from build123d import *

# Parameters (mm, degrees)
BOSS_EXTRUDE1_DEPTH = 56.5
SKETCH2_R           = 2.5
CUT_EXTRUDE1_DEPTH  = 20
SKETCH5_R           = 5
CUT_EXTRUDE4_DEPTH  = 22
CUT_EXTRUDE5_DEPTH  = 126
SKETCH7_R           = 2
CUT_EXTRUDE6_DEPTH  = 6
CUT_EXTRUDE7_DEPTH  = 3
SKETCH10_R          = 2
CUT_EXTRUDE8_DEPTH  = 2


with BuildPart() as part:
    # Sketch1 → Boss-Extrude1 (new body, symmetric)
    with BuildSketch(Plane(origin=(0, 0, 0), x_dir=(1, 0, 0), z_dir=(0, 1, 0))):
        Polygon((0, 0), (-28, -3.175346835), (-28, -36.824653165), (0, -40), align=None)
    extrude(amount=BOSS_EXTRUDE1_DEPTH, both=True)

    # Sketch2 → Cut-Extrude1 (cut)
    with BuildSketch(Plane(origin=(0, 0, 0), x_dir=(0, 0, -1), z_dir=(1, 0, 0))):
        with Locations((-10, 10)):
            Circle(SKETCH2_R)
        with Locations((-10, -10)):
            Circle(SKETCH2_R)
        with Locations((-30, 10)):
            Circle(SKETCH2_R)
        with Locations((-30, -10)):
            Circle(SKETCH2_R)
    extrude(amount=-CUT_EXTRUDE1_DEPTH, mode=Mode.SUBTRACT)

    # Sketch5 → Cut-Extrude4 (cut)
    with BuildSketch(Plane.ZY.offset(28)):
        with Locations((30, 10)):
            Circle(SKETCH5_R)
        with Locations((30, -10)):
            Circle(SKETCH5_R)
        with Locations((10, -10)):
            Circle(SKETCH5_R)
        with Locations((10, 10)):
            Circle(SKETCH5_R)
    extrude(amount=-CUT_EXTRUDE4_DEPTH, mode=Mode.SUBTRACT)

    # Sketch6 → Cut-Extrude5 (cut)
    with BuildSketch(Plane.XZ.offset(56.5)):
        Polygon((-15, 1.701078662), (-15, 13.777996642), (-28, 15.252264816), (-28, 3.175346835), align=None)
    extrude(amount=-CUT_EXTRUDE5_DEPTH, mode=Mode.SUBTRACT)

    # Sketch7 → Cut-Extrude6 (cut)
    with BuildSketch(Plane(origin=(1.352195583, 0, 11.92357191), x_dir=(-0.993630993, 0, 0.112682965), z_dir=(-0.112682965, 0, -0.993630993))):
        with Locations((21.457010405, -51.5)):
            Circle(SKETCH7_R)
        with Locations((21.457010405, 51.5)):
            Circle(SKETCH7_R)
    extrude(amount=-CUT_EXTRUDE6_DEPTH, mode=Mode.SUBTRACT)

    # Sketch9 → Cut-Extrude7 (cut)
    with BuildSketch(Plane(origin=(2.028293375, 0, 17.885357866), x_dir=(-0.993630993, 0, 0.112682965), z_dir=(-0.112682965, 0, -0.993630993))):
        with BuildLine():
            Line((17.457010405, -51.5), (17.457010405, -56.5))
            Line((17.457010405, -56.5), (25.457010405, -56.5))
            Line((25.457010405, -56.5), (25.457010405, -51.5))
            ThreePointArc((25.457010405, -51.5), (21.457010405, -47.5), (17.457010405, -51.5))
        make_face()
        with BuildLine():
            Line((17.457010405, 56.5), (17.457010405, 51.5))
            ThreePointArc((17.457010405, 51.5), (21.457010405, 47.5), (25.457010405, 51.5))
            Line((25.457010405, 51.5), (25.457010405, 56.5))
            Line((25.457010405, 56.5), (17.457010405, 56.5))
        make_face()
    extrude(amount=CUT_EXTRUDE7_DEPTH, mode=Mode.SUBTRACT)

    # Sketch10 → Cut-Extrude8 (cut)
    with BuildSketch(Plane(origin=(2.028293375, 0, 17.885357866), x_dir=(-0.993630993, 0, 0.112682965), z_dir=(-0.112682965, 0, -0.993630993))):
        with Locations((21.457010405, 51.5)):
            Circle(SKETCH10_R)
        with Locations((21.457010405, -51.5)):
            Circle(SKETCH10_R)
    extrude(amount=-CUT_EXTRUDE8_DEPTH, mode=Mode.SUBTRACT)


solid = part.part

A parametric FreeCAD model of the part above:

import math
import FreeCAD as App
import Part
import Sketcher

V = App.Vector
Q = App.Units.Quantity

doc = App.newDocument("Part")
params = doc.addObject("Spreadsheet::Sheet", "Params")
for row, (alias, value) in enumerate([
    ("sketch1_height", "40 mm"),
    ("pad1_length", "113 mm"),
    ("sketch2_diameter", "5 mm"),
    ("pocket1_length", "20 mm"),
    ("sketch3_diameter", "10 mm"),
    ("pocket2_length", "22 mm"),
    ("pocket3_length", "126 mm"),
    ("sketch5_diameter", "4 mm"),
    ("pocket4_length", "6 mm"),
    ("sketch6_radius", "4 mm"),
    ("sketch6_height", "5 mm"),
    ("pocket5_length", "3 mm"),
    ("sketch7_diameter", "4 mm"),
    ("pocket6_length", "2 mm"),
], start=1):
    params.set(f"A{row}", alias)
    params.set(f"B{row}", "=" + value)
    params.setAlias(f"B{row}", alias)

body = doc.addObject("PartDesign::Body", "Body")

# Sketch on XZ plane
sketch1 = body.newObject("Sketcher::SketchObject", "Sketch")
sketch1.AttachmentSupport = (doc.getObject("XZ_Plane"), [""])
sketch1.MapMode = "FlatFace"
sketch1.addGeometry([
    Part.LineSegment(V(0, 0, 0), V(-28, 3.175347, 0)),
    Part.LineSegment(V(-28, 3.175347, 0), V(-28, 36.824653, 0)),
    Part.LineSegment(V(-28, 36.824653, 0), V(0, 40, 0)),
    Part.LineSegment(V(0, 40, 0), V(0, 0, 0)),
], False)
sketch1.addConstraint([
    Sketcher.Constraint("Coincident", 0, 2, 1, 1),
    Sketcher.Constraint("Coincident", 1, 2, 2, 1),
    Sketcher.Constraint("Coincident", 2, 2, 3, 1),
    Sketcher.Constraint("Coincident", 3, 2, 0, 1),
    Sketcher.Constraint("Vertical", 1),
    Sketcher.Constraint("Vertical", 3),
    Sketcher.Constraint("Coincident", 3, 2, -1, 1),
    Sketcher.Constraint("Equal", 0, 2),
    Sketcher.Constraint("DistanceY", 3, 2, 3, 1, 40.0),
    Sketcher.Constraint("DistanceX", 0, 2, -1, 1, 28.0),
    Sketcher.Constraint("Angle", 0, Q("173.53 deg")),
])
sketch1.setExpression("Constraints[8]", "Params.sketch1_height")
pad1 = body.newObject("PartDesign::Pad", "Pad")
pad1.Profile = sketch1
pad1.setExpression("Length", "Params.pad1_length")
pad1.Midplane = True

# Sketch on YZ plane
sketch2 = body.newObject("Sketcher::SketchObject", "Sketch001")
sketch2.AttachmentSupport = (doc.getObject("YZ_Plane"), [""])
sketch2.MapMode = "FlatFace"
sketch2.addGeometry([
    Part.Circle(V(10, 10, 0), V(0, 0, 1), 2.5),
    Part.Circle(V(-10, 10, 0), V(0, 0, 1), 2.5),
    Part.Circle(V(10, 30, 0), V(0, 0, 1), 2.5),
    Part.Circle(V(-10, 30, 0), V(0, 0, 1), 2.5),
], False)
sketch2.addConstraint([
    Sketcher.Constraint("Equal", 0, 1),
    Sketcher.Constraint("Equal", 1, 2),
    Sketcher.Constraint("Equal", 2, 3),
    Sketcher.Constraint("Symmetric", 0, 3, 1, 3, -2),
    Sketcher.Constraint("Symmetric", 2, 3, 3, 3, -2),
    Sketcher.Constraint("Vertical", 0, 3, 2, 3),
    Sketcher.Constraint("Diameter", 0, 5.0),
    Sketcher.Constraint("DistanceX", -1, 1, 0, 3, 10.0),
    Sketcher.Constraint("DistanceY", -1, 1, 0, 3, 10.0),
    Sketcher.Constraint("DistanceY", -1, 1, 2, 3, 30.0),
])
sketch2.setExpression("Constraints[6]", "Params.sketch2_diameter")
pocket1 = body.newObject("PartDesign::Pocket", "Pocket")
pocket1.Profile = sketch2
pocket1.setExpression("Length", "Params.pocket1_length")

# Sketch on YZ plane
sketch3 = body.newObject("Sketcher::SketchObject", "Sketch002")
sketch3.AttachmentSupport = (doc.getObject("YZ_Plane"), [""])
sketch3.MapMode = "FlatFace"
sketch3.AttachmentOffset = App.Placement(V(0, 0, -28), App.Rotation())
sketch3.addGeometry([
    Part.Circle(V(10, 30, 0), V(0, 0, 1), 5),
    Part.Circle(V(-10, 30, 0), V(0, 0, 1), 5),
    Part.Circle(V(-10, 10, 0), V(0, 0, 1), 5),
    Part.Circle(V(10, 10, 0), V(0, 0, 1), 5),
], False)
sketch3.addConstraint([
    Sketcher.Constraint("Equal", 0, 1),
    Sketcher.Constraint("Equal", 1, 2),
    Sketcher.Constraint("Equal", 2, 3),
    Sketcher.Constraint("Symmetric", 0, 3, 1, 3, -2),
    Sketcher.Constraint("Symmetric", 2, 3, 3, 3, -2),
    Sketcher.Constraint("Vertical", 1, 3, 2, 3),
    Sketcher.Constraint("Diameter", 0, 10.0),
    Sketcher.Constraint("DistanceX", -1, 1, 0, 3, 10.0),
    Sketcher.Constraint("DistanceY", -1, 1, 0, 3, 30.0),
    Sketcher.Constraint("DistanceY", -1, 1, 2, 3, 10.0),
])
sketch3.setExpression("Constraints[6]", "Params.sketch3_diameter")
pocket2 = body.newObject("PartDesign::Pocket", "Pocket001")
pocket2.Profile = sketch3
pocket2.setExpression("Length", "Params.pocket2_length")
pocket2.Reversed = True

# Sketch on XZ plane
sketch4 = body.newObject("Sketcher::SketchObject", "Sketch003")
sketch4.AttachmentSupport = (doc.getObject("XZ_Plane"), [""])
sketch4.MapMode = "FlatFace"
sketch4.AttachmentOffset = App.Placement(V(0, 0, 56.5), App.Rotation())
sketch4.addGeometry([
    Part.LineSegment(V(-15, 1.701079, 0), V(-15, 13.777997, 0)),
    Part.LineSegment(V(-15, 13.777997, 0), V(-28, 15.252265, 0)),
    Part.LineSegment(V(-28, 15.252265, 0), V(-28, 3.175347, 0)),
    Part.LineSegment(V(-28, 3.175347, 0), V(-15, 1.701079, 0)),
], False)
sketch4.addConstraint([
    Sketcher.Constraint("Coincident", 0, 2, 1, 1),
    Sketcher.Constraint("Coincident", 1, 2, 2, 1),
    Sketcher.Constraint("Coincident", 2, 2, 3, 1),
    Sketcher.Constraint("Coincident", 3, 2, 0, 1),
    Sketcher.Constraint("Vertical", 0),
    Sketcher.Constraint("Vertical", 2),
    Sketcher.Constraint("Parallel", 1, 3),
    Sketcher.Constraint("DistanceX", 0, 2, -1, 1, 15.0),
    Sketcher.Constraint("DistanceX", 1, 2, -1, 1, 28.0),
    Sketcher.Constraint("Angle", 1, Q("173.53 deg")),
    Sketcher.Constraint("DistanceY", 0, 1, 0, 2, 12.076918),
    Sketcher.Constraint("DistanceY", -1, 1, 3, 2, 1.701079),
])
pocket3 = body.newObject("PartDesign::Pocket", "Pocket002")
pocket3.Profile = sketch4
pocket3.setExpression("Length", "Params.pocket3_length")

# Sketch on an angled plane
sketch5 = body.newObject("Sketcher::SketchObject", "Sketch004")
sketch5.Placement = App.Placement(V(1.352196, 0, 11.923572), App.Rotation(V(-0.993630993, 0, 0.112682965), V(0, 1.000000001, 0), V(-0.112682965, 0, -0.993630993), "ZXY"))
sketch5.addGeometry([
    Part.Circle(V(21.45701, -51.5, 0), V(0, 0, 1), 2),
    Part.Circle(V(21.45701, 51.5, 0), V(0, 0, 1), 2),
], False)
sketch5.addConstraint([
    Sketcher.Constraint("Equal", 0, 1),
    Sketcher.Constraint("Symmetric", 0, 3, 1, 3, -1),
    Sketcher.Constraint("Diameter", 0, 4.0),
    Sketcher.Constraint("DistanceY", 0, 3, 1, 3, 103.0),
    Sketcher.Constraint("DistanceX", -1, 1, 0, 3, 21.45701),
])
sketch5.setExpression("Constraints[2]", "Params.sketch5_diameter")
pocket4 = body.newObject("PartDesign::Pocket", "Pocket003")
pocket4.Profile = sketch5
pocket4.setExpression("Length", "Params.pocket4_length")

# Sketch on an angled plane
sketch6 = body.newObject("Sketcher::SketchObject", "Sketch005")
sketch6.Placement = App.Placement(V(2.028293, 0, 17.885358), App.Rotation(V(-0.993630993, 0, 0.112682965), V(0, 1.000000001, 0), V(-0.112682965, 0, -0.993630993), "ZXY"))
sketch6.addGeometry([
    Part.LineSegment(V(17.45701, -51.5, 0), V(17.45701, -56.5, 0)),  # 0
    Part.LineSegment(V(17.45701, -56.5, 0), V(25.45701, -56.5, 0)),  # 1
    Part.LineSegment(V(25.45701, -56.5, 0), V(25.45701, -51.5, 0)),  # 2
    Part.ArcOfCircle(Part.Circle(V(21.45701, -51.5, 0), V(0, 0, 1), 4), math.radians(0), math.radians(180)),  # 3
    Part.LineSegment(V(17.45701, 56.5, 0), V(17.45701, 51.5, 0)),  # 4
    Part.ArcOfCircle(Part.Circle(V(21.45701, 51.5, 0), V(0, 0, 1), 4), math.radians(180), math.radians(360)),  # 5
    Part.LineSegment(V(25.45701, 51.5, 0), V(25.45701, 56.5, 0)),  # 6
    Part.LineSegment(V(25.45701, 56.5, 0), V(17.45701, 56.5, 0)),  # 7
], False)
sketch6.addConstraint([
    Sketcher.Constraint("Coincident", 0, 2, 1, 1),
    Sketcher.Constraint("Coincident", 1, 2, 2, 1),
    Sketcher.Constraint("Tangent", 2, 2, 3, 1),
    Sketcher.Constraint("Tangent", 3, 2, 0, 1),
    Sketcher.Constraint("Tangent", 4, 2, 5, 1),
    Sketcher.Constraint("Tangent", 5, 2, 6, 1),
    Sketcher.Constraint("Coincident", 6, 2, 7, 1),
    Sketcher.Constraint("Coincident", 7, 2, 4, 1),
    Sketcher.Constraint("Vertical", 0),
    Sketcher.Constraint("Horizontal", 1),
    Sketcher.Constraint("Vertical", 2),
    Sketcher.Constraint("Vertical", 4),
    Sketcher.Constraint("Vertical", 6),
    Sketcher.Constraint("Horizontal", 7),
    Sketcher.Constraint("Equal", 3, 5),
    Sketcher.Constraint("Symmetric", 3, 3, 5, 3, -1),
    Sketcher.Constraint("Equal", 2, 4),
    Sketcher.Constraint("Radius", 3, 4.0),
    Sketcher.Constraint("DistanceY", 0, 2, 0, 1, 5.0),
    Sketcher.Constraint("DistanceY", 3, 3, 5, 3, 103.0),
    Sketcher.Constraint("DistanceX", -1, 1, 3, 3, 21.45701),
])
sketch6.setExpression("Constraints[17]", "Params.sketch6_radius")
sketch6.setExpression("Constraints[18]", "Params.sketch6_height")
pocket5 = body.newObject("PartDesign::Pocket", "Pocket004")
pocket5.Profile = sketch6
pocket5.setExpression("Length", "Params.pocket5_length")
pocket5.Reversed = True

# Sketch on an angled plane
sketch7 = body.newObject("Sketcher::SketchObject", "Sketch006")
sketch7.Placement = App.Placement(V(2.028293, 0, 17.885358), App.Rotation(V(-0.993630993, 0, 0.112682965), V(0, 1.000000001, 0), V(-0.112682965, 0, -0.993630993), "ZXY"))
sketch7.addGeometry([
    Part.Circle(V(21.45701, 51.5, 0), V(0, 0, 1), 2),
    Part.Circle(V(21.45701, -51.5, 0), V(0, 0, 1), 2),
], False)
sketch7.addConstraint([
    Sketcher.Constraint("Equal", 0, 1),
    Sketcher.Constraint("Symmetric", 0, 3, 1, 3, -1),
    Sketcher.Constraint("Diameter", 0, 4.0),
    Sketcher.Constraint("DistanceY", 1, 3, 0, 3, 103.0),
    Sketcher.Constraint("DistanceX", -1, 1, 0, 3, 21.45701),
])
sketch7.setExpression("Constraints[2]", "Params.sketch7_diameter")
pocket6 = body.newObject("PartDesign::Pocket", "Pocket005")
pocket6.Profile = sketch7
pocket6.setExpression("Length", "Params.pocket6_length")

doc.recompute()
